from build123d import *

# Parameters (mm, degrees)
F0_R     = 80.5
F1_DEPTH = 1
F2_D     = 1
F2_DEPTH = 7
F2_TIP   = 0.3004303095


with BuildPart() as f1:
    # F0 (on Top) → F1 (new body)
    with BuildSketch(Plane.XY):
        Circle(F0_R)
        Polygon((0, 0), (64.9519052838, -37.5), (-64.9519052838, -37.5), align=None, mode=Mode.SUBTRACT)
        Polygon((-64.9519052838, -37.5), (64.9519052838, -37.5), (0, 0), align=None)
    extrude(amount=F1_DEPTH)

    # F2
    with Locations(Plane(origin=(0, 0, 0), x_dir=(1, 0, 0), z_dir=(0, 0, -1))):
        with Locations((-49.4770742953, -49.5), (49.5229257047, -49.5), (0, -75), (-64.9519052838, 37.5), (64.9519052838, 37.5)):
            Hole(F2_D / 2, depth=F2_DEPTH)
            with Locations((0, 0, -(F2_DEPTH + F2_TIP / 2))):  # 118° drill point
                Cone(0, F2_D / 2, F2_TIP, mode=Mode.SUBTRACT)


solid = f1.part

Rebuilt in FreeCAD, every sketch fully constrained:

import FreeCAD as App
import Part
import Sketcher

V = App.Vector

doc = App.newDocument("Part")
params = doc.addObject("Spreadsheet::Sheet", "Params")
for row, (alias, value) in enumerate([
    ("sketch1_diameter", "161 mm"),
    ("pad1_length", "1 mm"),
    ("sketch2_diameter", "1 mm"),
    ("hole_diameter", "1 mm"),
    ("hole_depth", "7 mm"),
], start=1):
    params.set(f"A{row}", alias)
    params.set(f"B{row}", "=" + value)
    params.setAlias(f"B{row}", alias)

body = doc.addObject("PartDesign::Body", "Body")

# Sketch on XY plane
sketch1 = body.newObject("Sketcher::SketchObject", "Sketch")
sketch1.AttachmentSupport = (doc.getObject("XY_Plane"), [""])
sketch1.MapMode = "FlatFace"
sketch1.addGeometry(Part.Circle(V(0, 0, 0), V(0, 0, 1), 80.5), False)
sketch1.addConstraint([
    Sketcher.Constraint("Coincident", 0, 3, -1, 1),
    Sketcher.Constraint("Diameter", 0, 161.0),
])
sketch1.setExpression("Constraints[1]", "Params.sketch1_diameter")
pad1 = body.newObject("PartDesign::Pad", "Pad")
pad1.Profile = sketch1
pad1.setExpression("Length", "Params.pad1_length")

# Sketch on XY plane
sketch2 = body.newObject("Sketcher::SketchObject", "Sketch001")
sketch2.AttachmentSupport = (doc.getObject("XY_Plane"), [""])
sketch2.MapMode = "FlatFace"
sketch2.addGeometry([
    Part.Circle(V(-49.477074, 49.5, 0), V(0, 0, 1), 0.5),  # 0
    Part.Circle(V(49.522926, 49.5, 0), V(0, 0, 1), 0.5),  # 1
    Part.Circle(V(0, 75, 0), V(0, 0, 1), 0.5),  # 2
    Part.Circle(V(-64.951905, -37.5, 0), V(0, 0, 1), 0.5),  # 3
    Part.Circle(V(64.951905, -37.5, 0), V(0, 0, 1), 0.5),  # 4
], False)
sketch2.addConstraint([
    Sketcher.Constraint("Equal", 0, 1),
    Sketcher.Constraint("Equal", 1, 2),
    Sketcher.Constraint("Equal", 2, 3),
    Sketcher.Constraint("Equal", 3, 4),
    Sketcher.Constraint("Symmetric", 3, 3, 4, 3, -2),
    Sketcher.Constraint("PointOnObject", 2, 3, -2),
    Sketcher.Constraint("Horizontal", 0, 3, 1, 3),
    Sketcher.Constraint("Diameter", 0, 1.0),
    Sketcher.Constraint("DistanceY", -1, 1, 2, 3, 75.0),
    Sketcher.Constraint("DistanceX", 0, 3, 1, 3, 99.0),
    Sketcher.Constraint("DistanceY", 3, 3, 0, 3, 87.0),
    Sketcher.Constraint("DistanceY", -1, 1, 0, 3, 49.5),
    Sketcher.Constraint("DistanceX", 3, 3, 0, 3, 15.474831),
    Sketcher.Constraint("DistanceX", 1, 3, 4, 3, 15.42898),
])
sketch2.setExpression("Constraints[7]", "Params.sketch2_diameter")
doc.recompute()
hole = body.newObject("PartDesign::Hole", "Hole")
hole.Profile = sketch2
hole.ThreadType = "None"
hole.setExpression("Diameter", "Params.hole_diameter")
hole.DepthType = "Dimension"
hole.setExpression("Depth", "Params.hole_depth")
hole.DrillPoint = "Angled"
hole.DrillPointAngle = 118
hole.Reversed = True

doc.recompute()
